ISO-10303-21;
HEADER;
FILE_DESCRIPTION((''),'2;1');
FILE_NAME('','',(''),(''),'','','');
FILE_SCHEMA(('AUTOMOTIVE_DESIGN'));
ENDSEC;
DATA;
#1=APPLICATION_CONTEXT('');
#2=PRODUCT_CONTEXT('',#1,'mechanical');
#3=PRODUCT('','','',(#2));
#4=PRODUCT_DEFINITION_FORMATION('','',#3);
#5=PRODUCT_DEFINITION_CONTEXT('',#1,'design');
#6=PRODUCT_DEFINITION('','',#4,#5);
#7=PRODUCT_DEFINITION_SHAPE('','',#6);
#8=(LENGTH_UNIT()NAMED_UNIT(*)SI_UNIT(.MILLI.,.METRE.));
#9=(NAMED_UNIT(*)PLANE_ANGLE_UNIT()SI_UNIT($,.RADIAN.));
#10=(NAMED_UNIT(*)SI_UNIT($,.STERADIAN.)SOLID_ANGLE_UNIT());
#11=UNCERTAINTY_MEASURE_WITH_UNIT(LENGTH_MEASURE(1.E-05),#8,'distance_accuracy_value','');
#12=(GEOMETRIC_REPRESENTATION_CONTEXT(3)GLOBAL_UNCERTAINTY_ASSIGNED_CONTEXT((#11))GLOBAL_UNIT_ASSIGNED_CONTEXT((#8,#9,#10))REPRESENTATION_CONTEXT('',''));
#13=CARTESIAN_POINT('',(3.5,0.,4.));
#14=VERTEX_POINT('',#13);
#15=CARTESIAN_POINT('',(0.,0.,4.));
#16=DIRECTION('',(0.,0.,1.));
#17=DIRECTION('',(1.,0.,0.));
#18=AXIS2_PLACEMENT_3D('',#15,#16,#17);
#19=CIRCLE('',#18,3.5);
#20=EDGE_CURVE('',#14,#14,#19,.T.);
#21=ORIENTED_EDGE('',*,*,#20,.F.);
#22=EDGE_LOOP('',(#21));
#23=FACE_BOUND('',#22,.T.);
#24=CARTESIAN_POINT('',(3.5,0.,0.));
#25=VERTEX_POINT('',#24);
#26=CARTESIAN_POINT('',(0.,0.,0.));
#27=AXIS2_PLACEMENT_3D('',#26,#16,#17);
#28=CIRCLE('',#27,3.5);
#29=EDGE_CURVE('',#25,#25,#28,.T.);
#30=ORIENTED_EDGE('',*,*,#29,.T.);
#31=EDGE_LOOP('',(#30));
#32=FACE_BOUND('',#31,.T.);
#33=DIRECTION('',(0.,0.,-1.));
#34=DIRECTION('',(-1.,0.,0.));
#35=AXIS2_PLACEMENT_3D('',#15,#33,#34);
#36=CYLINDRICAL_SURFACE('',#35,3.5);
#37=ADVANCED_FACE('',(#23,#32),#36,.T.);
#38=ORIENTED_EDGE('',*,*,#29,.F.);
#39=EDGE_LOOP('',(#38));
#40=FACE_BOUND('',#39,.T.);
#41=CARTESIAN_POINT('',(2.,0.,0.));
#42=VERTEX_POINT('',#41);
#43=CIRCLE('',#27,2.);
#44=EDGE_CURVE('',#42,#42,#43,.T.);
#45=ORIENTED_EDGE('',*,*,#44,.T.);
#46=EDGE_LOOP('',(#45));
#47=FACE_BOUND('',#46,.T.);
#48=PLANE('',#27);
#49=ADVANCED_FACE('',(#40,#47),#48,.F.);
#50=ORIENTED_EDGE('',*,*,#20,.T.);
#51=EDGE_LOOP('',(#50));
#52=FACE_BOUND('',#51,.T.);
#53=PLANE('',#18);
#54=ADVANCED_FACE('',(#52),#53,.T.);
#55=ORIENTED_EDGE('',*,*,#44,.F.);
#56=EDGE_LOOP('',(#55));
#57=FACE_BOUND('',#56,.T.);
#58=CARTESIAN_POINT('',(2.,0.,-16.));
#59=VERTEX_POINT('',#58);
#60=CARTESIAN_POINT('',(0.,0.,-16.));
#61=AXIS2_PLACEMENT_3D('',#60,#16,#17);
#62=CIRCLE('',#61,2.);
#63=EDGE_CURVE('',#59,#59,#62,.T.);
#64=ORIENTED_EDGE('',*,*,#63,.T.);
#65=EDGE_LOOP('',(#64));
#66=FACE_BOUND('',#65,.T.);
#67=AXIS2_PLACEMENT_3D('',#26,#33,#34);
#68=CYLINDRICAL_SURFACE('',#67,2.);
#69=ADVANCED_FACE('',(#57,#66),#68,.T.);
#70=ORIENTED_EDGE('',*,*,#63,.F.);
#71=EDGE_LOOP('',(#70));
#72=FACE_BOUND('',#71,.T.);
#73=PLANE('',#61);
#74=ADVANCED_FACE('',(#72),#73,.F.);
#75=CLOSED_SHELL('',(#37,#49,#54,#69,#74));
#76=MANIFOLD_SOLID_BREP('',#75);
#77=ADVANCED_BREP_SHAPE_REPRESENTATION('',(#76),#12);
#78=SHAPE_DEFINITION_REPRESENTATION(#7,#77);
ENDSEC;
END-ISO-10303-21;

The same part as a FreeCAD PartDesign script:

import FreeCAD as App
import Part
import Sketcher

doc = App.newDocument("Part")
body = doc.addObject("PartDesign::Body", "Body")

# Sketch on XY plane
sketch1 = body.newObject("Sketcher::SketchObject", "Sketch")
sketch1.AttachmentSupport = (doc.getObject("XY_Plane"), [""])
sketch1.MapMode = "FlatFace"
sketch1.AttachmentOffset = App.Placement(App.Vector(0, 0, -16), App.Rotation())
sketch1.addGeometry(Part.Circle(App.Vector(0, 0, 0), App.Vector(0, 0, 1), 2), False)
sketch1.addConstraint(Sketcher.Constraint("Coincident", 0, 3, -1, 1))
sketch1.addConstraint(Sketcher.Constraint("Diameter", 0, 4.0))
pad1 = body.newObject("PartDesign::Pad", "Pad")
pad1.Profile = sketch1
pad1.Length = 16

# Sketch on XY plane
sketch2 = body.newObject("Sketcher::SketchObject", "Sketch001")
sketch2.AttachmentSupport = (doc.getObject("XY_Plane"), [""])
sketch2.MapMode = "FlatFace"
sketch2.addGeometry(Part.Circle(App.Vector(0, 0, 0), App.Vector(0, 0, 1), 3.5), False)
sketch2.addConstraint(Sketcher.Constraint("Coincident", 0, 3, -1, 1))
sketch2.addConstraint(Sketcher.Constraint("Diameter", 0, 7.0))
pad2 = body.newObject("PartDesign::Pad", "Pad001")
pad2.Profile = sketch2
pad2.Length = 4

doc.recompute()
